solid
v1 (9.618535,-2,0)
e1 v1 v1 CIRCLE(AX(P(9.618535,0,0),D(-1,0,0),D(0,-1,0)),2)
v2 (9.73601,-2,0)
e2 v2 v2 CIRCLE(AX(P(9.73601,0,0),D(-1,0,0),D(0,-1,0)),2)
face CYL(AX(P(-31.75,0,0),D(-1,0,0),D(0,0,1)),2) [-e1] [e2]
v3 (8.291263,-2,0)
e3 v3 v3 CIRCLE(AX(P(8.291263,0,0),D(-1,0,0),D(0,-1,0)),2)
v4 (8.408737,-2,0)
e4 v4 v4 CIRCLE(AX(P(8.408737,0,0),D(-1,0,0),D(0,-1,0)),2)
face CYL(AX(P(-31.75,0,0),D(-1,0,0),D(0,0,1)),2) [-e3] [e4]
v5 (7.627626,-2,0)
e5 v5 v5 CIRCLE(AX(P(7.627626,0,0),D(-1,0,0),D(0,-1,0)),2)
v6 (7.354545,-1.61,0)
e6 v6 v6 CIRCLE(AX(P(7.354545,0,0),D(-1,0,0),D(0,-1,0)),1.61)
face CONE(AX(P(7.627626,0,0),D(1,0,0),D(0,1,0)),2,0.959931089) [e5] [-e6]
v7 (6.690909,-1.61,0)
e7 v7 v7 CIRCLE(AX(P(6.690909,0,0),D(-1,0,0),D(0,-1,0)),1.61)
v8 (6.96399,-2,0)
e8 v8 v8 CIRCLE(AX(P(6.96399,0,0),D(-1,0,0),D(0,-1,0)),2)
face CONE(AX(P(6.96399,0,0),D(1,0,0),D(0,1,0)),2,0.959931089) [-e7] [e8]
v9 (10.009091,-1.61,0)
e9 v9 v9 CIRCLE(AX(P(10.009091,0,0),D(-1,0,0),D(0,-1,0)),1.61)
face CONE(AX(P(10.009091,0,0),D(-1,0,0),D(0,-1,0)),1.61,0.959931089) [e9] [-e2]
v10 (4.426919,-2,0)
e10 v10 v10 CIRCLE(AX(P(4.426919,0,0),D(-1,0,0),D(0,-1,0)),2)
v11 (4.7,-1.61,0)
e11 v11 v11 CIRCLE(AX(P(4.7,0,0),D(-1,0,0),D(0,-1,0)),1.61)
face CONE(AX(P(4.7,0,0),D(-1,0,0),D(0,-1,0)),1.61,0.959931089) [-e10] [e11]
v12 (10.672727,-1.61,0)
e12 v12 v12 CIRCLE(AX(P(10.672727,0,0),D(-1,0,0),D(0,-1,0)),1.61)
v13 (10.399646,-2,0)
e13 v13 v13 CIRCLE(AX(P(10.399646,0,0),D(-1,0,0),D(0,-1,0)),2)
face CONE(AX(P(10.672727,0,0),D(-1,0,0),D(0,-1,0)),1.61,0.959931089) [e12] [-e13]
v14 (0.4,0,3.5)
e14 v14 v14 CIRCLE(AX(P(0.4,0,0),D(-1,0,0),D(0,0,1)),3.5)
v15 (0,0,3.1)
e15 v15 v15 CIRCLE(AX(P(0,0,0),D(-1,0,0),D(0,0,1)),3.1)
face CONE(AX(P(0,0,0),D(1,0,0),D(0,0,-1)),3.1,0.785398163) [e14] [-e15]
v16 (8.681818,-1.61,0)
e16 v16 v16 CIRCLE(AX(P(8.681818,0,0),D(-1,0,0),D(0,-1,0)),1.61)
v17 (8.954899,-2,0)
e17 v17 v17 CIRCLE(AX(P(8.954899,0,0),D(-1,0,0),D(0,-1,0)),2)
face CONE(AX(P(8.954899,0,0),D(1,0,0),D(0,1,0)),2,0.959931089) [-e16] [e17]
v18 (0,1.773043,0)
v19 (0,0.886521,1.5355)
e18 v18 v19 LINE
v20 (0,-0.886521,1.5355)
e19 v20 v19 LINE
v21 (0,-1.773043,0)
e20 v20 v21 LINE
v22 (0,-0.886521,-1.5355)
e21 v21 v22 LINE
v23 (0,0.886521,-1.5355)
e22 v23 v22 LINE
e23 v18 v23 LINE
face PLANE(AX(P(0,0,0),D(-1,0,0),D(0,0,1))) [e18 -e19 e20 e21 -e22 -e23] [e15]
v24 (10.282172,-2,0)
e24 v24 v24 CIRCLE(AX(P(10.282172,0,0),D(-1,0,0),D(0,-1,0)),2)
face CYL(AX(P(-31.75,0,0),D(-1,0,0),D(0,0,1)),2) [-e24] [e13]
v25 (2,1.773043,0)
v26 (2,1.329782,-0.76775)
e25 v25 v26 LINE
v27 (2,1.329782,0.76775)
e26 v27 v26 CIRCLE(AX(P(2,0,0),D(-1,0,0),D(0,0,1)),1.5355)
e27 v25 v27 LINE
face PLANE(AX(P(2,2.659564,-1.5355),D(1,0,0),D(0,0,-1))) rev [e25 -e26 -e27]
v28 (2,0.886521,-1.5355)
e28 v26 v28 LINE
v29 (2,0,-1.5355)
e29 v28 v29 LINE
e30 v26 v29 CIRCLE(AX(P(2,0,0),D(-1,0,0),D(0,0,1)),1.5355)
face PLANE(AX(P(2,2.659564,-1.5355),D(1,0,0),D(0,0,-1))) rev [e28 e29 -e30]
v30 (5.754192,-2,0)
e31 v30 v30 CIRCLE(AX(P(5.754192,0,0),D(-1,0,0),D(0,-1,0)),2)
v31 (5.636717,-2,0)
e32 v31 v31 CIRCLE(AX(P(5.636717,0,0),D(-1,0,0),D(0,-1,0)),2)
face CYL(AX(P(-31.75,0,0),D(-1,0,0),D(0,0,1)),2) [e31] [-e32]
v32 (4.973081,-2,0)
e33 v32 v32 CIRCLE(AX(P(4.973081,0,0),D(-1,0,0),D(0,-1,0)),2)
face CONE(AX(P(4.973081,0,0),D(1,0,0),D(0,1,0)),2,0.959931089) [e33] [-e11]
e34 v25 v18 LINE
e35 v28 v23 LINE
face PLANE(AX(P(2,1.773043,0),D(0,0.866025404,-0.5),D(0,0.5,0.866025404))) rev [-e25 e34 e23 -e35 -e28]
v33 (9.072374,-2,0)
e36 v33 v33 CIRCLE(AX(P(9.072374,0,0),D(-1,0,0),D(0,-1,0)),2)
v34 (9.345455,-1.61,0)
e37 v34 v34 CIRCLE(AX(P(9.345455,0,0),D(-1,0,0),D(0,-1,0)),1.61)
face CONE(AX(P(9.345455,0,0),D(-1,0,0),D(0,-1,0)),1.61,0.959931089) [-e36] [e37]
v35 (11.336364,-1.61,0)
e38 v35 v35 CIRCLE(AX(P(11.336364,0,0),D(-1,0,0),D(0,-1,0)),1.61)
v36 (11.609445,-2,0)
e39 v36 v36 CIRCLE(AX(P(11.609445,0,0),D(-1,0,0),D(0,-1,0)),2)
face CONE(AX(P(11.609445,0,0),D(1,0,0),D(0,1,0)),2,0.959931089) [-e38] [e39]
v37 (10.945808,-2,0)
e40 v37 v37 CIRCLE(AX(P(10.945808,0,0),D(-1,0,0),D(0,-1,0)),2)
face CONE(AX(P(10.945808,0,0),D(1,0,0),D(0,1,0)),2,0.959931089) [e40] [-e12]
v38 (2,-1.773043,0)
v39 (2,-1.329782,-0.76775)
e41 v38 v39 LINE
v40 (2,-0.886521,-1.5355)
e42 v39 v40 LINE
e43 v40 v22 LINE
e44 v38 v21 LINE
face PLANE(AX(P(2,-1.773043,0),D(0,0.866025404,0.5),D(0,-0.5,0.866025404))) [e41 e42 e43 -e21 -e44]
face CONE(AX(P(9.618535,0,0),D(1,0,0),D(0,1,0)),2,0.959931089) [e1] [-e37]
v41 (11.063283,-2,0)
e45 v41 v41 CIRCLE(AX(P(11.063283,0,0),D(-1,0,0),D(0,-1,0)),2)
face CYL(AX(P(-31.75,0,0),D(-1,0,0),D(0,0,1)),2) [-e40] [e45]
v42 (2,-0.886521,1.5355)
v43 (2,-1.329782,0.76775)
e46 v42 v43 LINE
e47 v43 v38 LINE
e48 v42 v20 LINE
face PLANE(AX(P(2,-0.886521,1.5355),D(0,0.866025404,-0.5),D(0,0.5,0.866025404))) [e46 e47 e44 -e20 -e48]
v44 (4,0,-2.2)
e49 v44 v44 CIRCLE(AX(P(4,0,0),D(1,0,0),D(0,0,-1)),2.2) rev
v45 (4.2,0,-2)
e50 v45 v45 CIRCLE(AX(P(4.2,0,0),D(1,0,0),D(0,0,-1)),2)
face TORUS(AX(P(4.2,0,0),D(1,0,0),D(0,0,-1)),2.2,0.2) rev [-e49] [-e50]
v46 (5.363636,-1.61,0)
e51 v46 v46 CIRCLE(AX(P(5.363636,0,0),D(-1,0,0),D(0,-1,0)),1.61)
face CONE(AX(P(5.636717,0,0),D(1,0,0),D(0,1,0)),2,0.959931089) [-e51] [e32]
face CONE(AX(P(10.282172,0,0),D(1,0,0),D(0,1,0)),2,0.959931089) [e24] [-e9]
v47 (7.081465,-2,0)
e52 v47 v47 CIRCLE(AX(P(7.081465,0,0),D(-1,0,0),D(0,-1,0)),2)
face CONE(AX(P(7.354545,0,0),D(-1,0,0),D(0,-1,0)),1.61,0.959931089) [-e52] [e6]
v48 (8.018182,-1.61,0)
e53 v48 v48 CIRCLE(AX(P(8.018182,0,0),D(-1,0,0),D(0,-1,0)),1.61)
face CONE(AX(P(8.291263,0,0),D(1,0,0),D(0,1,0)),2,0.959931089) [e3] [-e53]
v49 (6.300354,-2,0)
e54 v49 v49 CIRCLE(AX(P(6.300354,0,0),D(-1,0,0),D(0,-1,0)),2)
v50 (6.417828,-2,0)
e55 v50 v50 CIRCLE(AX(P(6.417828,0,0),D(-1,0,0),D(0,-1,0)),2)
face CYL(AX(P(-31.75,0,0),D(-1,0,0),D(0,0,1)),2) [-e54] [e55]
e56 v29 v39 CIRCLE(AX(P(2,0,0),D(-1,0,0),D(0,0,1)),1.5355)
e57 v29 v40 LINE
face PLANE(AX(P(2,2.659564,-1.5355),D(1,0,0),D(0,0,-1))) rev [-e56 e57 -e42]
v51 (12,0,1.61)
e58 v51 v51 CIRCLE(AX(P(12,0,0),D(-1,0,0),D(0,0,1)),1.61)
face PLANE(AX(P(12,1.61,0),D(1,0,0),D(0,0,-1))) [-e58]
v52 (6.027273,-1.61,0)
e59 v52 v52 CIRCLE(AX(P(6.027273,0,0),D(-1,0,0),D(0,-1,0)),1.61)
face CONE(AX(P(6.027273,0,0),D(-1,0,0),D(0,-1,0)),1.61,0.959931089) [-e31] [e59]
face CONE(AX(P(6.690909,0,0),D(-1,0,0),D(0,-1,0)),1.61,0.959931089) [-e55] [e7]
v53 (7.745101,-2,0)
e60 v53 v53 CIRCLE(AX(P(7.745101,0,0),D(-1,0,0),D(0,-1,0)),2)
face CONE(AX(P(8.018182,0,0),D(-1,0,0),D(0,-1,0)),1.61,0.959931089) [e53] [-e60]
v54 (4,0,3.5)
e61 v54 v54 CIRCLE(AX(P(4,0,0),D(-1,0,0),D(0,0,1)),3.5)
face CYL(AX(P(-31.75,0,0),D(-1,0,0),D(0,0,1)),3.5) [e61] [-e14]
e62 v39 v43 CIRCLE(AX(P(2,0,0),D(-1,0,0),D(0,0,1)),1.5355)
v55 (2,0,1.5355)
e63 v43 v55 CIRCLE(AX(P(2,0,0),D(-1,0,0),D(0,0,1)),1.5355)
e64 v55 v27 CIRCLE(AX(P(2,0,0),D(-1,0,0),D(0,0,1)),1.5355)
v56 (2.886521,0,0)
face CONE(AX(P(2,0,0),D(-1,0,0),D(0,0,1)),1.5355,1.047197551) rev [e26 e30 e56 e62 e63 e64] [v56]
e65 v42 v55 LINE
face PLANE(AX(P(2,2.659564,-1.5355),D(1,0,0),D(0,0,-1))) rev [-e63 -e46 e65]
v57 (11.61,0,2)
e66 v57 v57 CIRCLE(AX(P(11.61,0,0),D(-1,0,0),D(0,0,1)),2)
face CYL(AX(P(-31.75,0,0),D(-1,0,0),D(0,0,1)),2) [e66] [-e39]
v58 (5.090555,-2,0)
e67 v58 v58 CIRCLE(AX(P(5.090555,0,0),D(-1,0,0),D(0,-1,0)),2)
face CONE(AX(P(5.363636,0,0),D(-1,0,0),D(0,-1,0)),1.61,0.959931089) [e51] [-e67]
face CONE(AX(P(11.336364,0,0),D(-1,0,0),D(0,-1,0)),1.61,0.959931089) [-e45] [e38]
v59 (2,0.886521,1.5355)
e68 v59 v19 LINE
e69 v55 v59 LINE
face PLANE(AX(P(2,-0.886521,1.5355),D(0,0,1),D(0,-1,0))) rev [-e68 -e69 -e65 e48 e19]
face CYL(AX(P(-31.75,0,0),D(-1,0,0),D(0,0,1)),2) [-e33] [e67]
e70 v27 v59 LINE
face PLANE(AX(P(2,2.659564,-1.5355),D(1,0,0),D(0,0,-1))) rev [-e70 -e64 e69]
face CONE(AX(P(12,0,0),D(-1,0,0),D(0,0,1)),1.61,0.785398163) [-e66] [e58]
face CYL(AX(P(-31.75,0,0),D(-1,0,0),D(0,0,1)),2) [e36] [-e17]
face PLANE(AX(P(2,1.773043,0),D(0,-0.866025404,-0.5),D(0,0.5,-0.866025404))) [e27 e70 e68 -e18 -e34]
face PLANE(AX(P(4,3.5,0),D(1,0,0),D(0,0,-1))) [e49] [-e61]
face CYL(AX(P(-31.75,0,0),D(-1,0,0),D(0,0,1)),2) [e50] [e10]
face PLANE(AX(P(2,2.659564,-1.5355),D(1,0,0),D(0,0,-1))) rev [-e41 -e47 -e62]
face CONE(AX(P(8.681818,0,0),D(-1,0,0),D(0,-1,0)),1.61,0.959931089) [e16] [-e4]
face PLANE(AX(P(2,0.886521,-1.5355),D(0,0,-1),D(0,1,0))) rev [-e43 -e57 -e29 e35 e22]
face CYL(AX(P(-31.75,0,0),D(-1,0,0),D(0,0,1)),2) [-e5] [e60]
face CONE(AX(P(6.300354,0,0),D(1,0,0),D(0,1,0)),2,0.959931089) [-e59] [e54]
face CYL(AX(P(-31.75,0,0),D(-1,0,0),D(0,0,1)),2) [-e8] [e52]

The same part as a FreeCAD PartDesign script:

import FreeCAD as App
import Part
import Sketcher

V = App.Vector
Q = App.Units.Quantity


def edges_at(feature, points):
    """Names of the edges that pass closest to the given points."""
    edges = feature.Shape.Edges
    near = lambda p: min(range(len(edges)), key=lambda i: edges[i].distToShape(Part.Vertex(*p))[0])
    return sorted({f"Edge{near(p) + 1}" for p in points})


def add_polygon(sketch, points):
    """Adds a closed chain of lines whose ends are joined by coincident constraints."""
    first, n = sketch.GeometryCount, len(points)
    for a, b in zip(points, points[1:] + points[:1]):
        sketch.addGeometry(Part.LineSegment(App.Vector(*a, 0), App.Vector(*b, 0)), False)
    for i in range(n):
        sketch.addConstraint(Sketcher.Constraint("Coincident", first + i, 2, first + (i + 1) % n, 1))

doc = App.newDocument("Part")
body = doc.addObject("PartDesign::Body", "Body")

sketch1 = body.newObject("Sketcher::SketchObject", "Sketch")
sketch1.AttachmentSupport = (doc.getObject("XY_Plane"), [""])
sketch1.MapMode = "FlatFace"
add_polygon(sketch1, [(0, 3.1), (0, 0), (12, 0), (12, 1.6), (11.6, 2), (4, 2), (4, 3.5), (0.4, 3.5)])
sketch1.addConstraint([
    Sketcher.Constraint("Vertical", 0),
    Sketcher.Constraint("Horizontal", 1),
    Sketcher.Constraint("Vertical", 2),
    Sketcher.Constraint("Horizontal", 4),
    Sketcher.Constraint("Vertical", 5),
    Sketcher.Constraint("Horizontal", 6),
    Sketcher.Constraint("Coincident", 0, 2, -1, 1),
    Sketcher.Constraint("Perpendicular", 3, 7),
    Sketcher.Constraint("DistanceX", 1, 1, 1, 2, 12.0),
    Sketcher.Constraint("Angle", 3, Q("135 deg")),
    Sketcher.Constraint("DistanceX", 6, 2, 6, 1, 3.6),
    Sketcher.Constraint("DistanceY", 0, 2, 0, 1, 3.1),
    Sketcher.Constraint("DistanceY", 5, 1, 5, 2, 1.5),
    Sketcher.Constraint("DistanceY", -1, 1, 3, 2, 2.0),
    Sketcher.Constraint("DistanceX", 4, 2, 4, 1, 7.61),
])
revolution = body.newObject("PartDesign::Revolution", "Revolution")
revolution.Profile = sketch1
revolution.ReferenceAxis = (sketch1, ["H_Axis"])
revolution.Angle = 360
doc.recompute()

fillet = body.newObject("PartDesign::Fillet", "Fillet")
fillet.Base = (revolution, edges_at(revolution, [(4, 0, -2)]))
fillet.Radius = 0.2

sketch2 = body.newObject("Sketcher::SketchObject", "Sketch001")
sketch2.AttachmentSupport = (doc.getObject("XY_Plane"), [""])
sketch2.MapMode = "FlatFace"
add_polygon(sketch2, [(2, 1.5), (0, 1.5), (0, 0), (2.9, 0)])
sketch2.addConstraint([
    Sketcher.Constraint("Horizontal", 0),
    Sketcher.Constraint("Vertical", 1),
    Sketcher.Constraint("Horizontal", 2),
    Sketcher.Constraint("Coincident", 1, 2, -1, 1),
    Sketcher.Constraint("DistanceX", 0, 2, 0, 1, 2.0),
    Sketcher.Constraint("Angle", 3, Q("120 deg")),
    Sketcher.Constraint("DistanceY", 1, 2, 1, 1, 1.5355),
])
groove = body.newObject("PartDesign::Groove", "Groove")
groove.Profile = sketch2
groove.ReferenceAxis = (sketch2, ["H_Axis"])
groove.Angle = 360

sketch3 = body.newObject("Sketcher::SketchObject", "Sketch002")
sketch3.AttachmentSupport = (doc.getObject("YZ_Plane"), [""])
sketch3.MapMode = "FlatFace"
add_polygon(sketch3, [(1.8, 0), (0.9, -1.5), (-0.9, -1.5), (-1.8, 0), (-0.9, 1.5), (0.9, 1.5)])
sketch3.addConstraint([
    Sketcher.Constraint("Horizontal", 1),
    Sketcher.Constraint("Horizontal", 4),
    Sketcher.Constraint("Symmetric", 0, 2, 3, 2, -1, 1),
    Sketcher.Constraint("Symmetric", 2, 2, 5, 2, -1, 1),
    Sketcher.Constraint("PointOnObject", 2, 2, -1),
    Sketcher.Constraint("Parallel", 2, 5),
    Sketcher.Constraint("Vertical", 1, 2, 3, 2),
    Sketcher.Constraint("Angle", 0, Q("-120 deg")),
    Sketcher.Constraint("DistanceY", 1, 2, 3, 2, 3.071),
    Sketcher.Constraint("DistanceX", 1, 2, 1, 1, 1.773043),
])
pocket1 = body.newObject("PartDesign::Pocket", "Pocket")
pocket1.Profile = sketch3
pocket1.Length = 2
pocket1.Reversed = True

sketch4 = body.newObject("Sketcher::SketchObject", "Sketch003")
sketch4.AttachmentSupport = (doc.getObject("XY_Plane"), [""])
sketch4.MapMode = "FlatFace"
add_polygon(sketch4, [(4.7, -1.61), (4.43, -2), (4.43, -2.5), (4.97, -2.5), (4.97, -2)])
sketch4.addConstraint([
    Sketcher.Constraint("Vertical", 1),
    Sketcher.Constraint("Horizontal", 2),
    Sketcher.Constraint("Vertical", 3),
    Sketcher.Constraint("Horizontal", 0, 2, 3, 2),
    Sketcher.Constraint("Equal", 0, 4),
    Sketcher.Constraint("Angle", 0, Q("-125 deg")),
    Sketcher.Constraint("DistanceY", 1, 2, 1, 1, 0.5),
    Sketcher.Constraint("DistanceY", 0, 2, -1, 1, 2.0),
    Sketcher.Constraint("DistanceX", -1, 1, 4, 2, 4.7),
    Sketcher.Constraint("DistanceY", 4, 2, -1, 1, 1.61),
])
groove2 = body.newObject("PartDesign::Groove", "Groove001")
groove2.Profile = sketch4
groove2.ReferenceAxis = (sketch4, ["H_Axis"])
groove2.Angle = 360
doc.recompute()

linearpattern = body.newObject("PartDesign::LinearPattern", "LinearPattern")
linearpattern.Originals = [groove2]
linearpattern.Direction = (doc.getObject("X_Axis"), [""])
linearpattern.Mode = "offset"
linearpattern.Offset = 0.663636
linearpattern.Occurrences = 11
body.Tip = linearpattern

doc.recompute()
